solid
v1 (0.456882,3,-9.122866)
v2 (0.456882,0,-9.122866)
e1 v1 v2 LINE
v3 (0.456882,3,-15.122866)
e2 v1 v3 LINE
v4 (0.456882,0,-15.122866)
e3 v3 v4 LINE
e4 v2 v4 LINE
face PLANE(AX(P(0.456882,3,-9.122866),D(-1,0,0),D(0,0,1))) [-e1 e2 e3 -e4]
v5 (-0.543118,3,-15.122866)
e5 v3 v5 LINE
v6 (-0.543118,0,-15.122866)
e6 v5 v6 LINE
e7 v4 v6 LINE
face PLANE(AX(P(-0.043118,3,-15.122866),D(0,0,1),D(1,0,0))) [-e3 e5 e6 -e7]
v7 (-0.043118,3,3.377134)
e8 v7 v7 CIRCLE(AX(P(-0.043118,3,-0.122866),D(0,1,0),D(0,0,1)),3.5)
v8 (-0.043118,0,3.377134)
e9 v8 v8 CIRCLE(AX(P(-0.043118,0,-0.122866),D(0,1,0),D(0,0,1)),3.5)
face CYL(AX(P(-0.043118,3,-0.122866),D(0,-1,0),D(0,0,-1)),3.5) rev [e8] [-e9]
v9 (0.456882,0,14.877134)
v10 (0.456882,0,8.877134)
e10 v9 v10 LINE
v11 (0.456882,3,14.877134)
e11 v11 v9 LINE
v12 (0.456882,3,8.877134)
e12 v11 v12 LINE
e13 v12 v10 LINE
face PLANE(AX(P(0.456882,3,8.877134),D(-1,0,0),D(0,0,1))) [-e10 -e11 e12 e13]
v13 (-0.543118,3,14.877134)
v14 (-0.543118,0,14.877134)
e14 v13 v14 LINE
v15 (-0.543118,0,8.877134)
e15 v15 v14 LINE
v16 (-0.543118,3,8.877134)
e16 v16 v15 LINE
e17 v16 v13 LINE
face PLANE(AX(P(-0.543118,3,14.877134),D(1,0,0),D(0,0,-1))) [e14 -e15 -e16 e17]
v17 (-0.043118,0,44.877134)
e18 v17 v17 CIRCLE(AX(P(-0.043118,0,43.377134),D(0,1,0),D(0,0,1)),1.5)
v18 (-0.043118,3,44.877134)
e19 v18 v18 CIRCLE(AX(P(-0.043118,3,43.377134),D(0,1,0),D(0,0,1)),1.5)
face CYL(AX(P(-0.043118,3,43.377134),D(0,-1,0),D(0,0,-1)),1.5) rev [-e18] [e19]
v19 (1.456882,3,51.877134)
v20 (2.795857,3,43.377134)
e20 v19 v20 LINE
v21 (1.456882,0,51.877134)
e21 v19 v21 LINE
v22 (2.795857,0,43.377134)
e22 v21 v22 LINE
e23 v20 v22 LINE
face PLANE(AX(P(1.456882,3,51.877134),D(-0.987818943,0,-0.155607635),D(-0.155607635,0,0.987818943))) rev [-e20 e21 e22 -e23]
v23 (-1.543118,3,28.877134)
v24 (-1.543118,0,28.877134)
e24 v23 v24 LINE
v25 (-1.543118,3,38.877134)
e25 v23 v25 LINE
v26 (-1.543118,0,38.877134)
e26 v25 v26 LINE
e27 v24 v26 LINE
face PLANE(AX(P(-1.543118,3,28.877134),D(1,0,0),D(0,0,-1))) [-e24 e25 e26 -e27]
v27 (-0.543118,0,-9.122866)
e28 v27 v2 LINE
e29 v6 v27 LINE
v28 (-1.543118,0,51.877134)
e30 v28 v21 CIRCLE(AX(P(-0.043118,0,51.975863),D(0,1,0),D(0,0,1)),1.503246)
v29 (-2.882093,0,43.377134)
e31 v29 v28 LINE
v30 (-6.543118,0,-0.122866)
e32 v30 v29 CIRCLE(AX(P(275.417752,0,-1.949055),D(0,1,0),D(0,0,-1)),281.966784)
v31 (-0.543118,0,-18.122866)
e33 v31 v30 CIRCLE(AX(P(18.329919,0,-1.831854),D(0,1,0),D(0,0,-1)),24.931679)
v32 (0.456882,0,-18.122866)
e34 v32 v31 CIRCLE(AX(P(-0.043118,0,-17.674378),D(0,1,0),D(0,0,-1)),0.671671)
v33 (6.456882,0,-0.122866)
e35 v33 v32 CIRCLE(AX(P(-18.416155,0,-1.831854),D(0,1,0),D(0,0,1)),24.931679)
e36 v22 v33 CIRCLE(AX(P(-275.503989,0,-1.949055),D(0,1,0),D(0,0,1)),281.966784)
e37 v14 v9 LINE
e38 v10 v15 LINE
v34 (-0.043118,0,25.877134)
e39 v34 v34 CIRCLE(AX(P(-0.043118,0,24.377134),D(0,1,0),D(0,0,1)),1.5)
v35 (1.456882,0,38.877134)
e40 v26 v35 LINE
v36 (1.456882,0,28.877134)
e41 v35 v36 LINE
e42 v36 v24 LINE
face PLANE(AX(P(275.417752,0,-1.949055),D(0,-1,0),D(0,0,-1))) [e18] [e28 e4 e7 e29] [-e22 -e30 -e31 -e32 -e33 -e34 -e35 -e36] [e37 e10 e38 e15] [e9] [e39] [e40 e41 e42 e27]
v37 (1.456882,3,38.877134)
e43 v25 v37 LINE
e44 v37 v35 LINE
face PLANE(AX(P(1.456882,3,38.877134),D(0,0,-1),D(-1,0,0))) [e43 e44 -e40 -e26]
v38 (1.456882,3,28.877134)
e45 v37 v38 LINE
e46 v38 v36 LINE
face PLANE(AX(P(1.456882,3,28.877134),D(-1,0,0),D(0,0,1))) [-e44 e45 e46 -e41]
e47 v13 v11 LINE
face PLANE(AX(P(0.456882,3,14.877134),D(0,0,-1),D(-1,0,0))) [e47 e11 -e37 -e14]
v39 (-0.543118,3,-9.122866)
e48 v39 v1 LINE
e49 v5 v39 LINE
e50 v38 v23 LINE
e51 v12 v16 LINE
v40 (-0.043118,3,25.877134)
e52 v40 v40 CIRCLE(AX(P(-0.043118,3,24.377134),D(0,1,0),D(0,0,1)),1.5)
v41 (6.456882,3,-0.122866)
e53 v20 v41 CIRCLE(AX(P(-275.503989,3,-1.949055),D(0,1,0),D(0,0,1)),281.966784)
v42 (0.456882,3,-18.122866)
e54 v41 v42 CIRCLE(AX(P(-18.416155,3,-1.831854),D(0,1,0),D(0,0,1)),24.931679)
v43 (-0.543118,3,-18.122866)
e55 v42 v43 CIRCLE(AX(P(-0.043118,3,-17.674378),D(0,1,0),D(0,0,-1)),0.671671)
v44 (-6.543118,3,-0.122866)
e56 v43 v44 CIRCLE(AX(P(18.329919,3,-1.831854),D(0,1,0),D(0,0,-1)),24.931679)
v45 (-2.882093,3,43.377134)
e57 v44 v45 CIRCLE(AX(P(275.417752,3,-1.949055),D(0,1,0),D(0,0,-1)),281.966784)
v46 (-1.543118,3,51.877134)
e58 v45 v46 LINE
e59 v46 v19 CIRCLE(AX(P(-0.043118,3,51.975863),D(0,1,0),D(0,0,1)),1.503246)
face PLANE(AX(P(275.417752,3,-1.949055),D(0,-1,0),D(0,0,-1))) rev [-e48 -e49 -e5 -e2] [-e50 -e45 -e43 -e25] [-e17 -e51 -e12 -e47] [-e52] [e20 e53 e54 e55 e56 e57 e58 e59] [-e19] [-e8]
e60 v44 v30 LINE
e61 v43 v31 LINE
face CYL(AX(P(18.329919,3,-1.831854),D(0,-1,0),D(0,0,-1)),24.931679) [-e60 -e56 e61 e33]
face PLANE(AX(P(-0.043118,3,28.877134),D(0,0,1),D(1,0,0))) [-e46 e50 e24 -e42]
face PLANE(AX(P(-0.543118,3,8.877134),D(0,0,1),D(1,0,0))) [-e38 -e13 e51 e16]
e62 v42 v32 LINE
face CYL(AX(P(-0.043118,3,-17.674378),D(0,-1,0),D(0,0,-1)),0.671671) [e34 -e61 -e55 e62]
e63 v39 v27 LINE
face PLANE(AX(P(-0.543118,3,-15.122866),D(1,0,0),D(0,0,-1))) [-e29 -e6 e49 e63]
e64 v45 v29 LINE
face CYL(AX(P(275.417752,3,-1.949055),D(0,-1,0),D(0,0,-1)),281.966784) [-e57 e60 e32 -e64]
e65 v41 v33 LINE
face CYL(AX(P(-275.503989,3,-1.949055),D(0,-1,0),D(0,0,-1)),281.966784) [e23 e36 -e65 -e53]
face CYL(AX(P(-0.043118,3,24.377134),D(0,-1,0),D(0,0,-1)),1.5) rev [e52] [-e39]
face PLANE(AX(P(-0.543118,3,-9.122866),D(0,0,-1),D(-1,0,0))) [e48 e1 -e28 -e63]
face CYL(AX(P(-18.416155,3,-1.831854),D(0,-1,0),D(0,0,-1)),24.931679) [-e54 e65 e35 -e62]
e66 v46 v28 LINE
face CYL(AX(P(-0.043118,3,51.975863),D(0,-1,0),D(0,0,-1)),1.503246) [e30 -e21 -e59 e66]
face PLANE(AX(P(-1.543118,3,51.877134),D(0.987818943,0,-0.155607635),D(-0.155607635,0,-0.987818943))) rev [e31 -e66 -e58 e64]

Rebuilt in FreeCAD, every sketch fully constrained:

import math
import FreeCAD as App
import Part
import Sketcher

V = App.Vector
Q = App.Units.Quantity


def add_polygon(sketch, points):
    """Adds a closed chain of lines whose ends are joined by coincident constraints."""
    first, n = sketch.GeometryCount, len(points)
    for a, b in zip(points, points[1:] + points[:1]):
        sketch.addGeometry(Part.LineSegment(App.Vector(*a, 0), App.Vector(*b, 0)), False)
    for i in range(n):
        sketch.addConstraint(Sketcher.Constraint("Coincident", first + i, 2, first + (i + 1) % n, 1))

doc = App.newDocument("Part")
body = doc.addObject("PartDesign::Body", "Body")

sketch1 = body.newObject("Sketcher::SketchObject", "Sketch")
sketch1.AttachmentSupport = (doc.getObject("XZ_Plane"), [""])
sketch1.MapMode = "FlatFace"
sketch1.addGeometry(Part.LineSegment(V(-2.882093, 43.377134, 0), V(-1.543118, 51.877134, 0)), False)
sketch1.addGeometry(Part.ArcOfCircle(Part.Circle(V(-0.043118, 51.975863, 0), V(0, 0, 1), 1.503246), math.radians(-3.76573), math.radians(183.76573)), False)
sketch1.addGeometry(Part.LineSegment(V(1.456882, 51.877134, 0), V(2.795857, 43.377134, 0)), False)
sketch1.addGeometry(Part.ArcOfCircle(Part.Circle(V(-275.503989, -1.949055, 0), V(0, 0, 1), 281.966784), math.radians(0.371085), math.radians(9.250437)), False)
sketch1.addGeometry(Part.ArcOfCircle(Part.Circle(V(-18.416155, -1.831854, 0), V(0, 0, 1), 24.931679), math.radians(-40.800424), math.radians(3.930526)), False)
sketch1.addGeometry(Part.ArcOfCircle(Part.Circle(V(-0.043118, -17.674378, 0), V(0, 0, 1), 0.671671), math.radians(-138.108653), math.radians(-41.891347)), False)
sketch1.addGeometry(Part.ArcOfCircle(Part.Circle(V(18.329919, -1.831854, 0), V(0, 0, 1), 24.931679), math.radians(176.069474), math.radians(220.800424)), False)
sketch1.addGeometry(Part.ArcOfCircle(Part.Circle(V(275.417752, -1.949055, 0), V(0, 0, 1), 281.966784), math.radians(170.749563), math.radians(179.628915)), False)
sketch1.addGeometry(Part.Circle(V(-0.043118, 43.377134, 0), V(0, 0, 1), 1.5), False)
add_polygon(sketch1, [(1.456882, 28.877134), (1.456882, 38.877134), (-1.543118, 38.877134), (-1.543118, 28.877134)])
sketch1.addGeometry(Part.Circle(V(-0.043118, 24.377134, 0), V(0, 0, 1), 1.5), False)
add_polygon(sketch1, [(-0.543118, 14.877134), (-0.543118, 8.877134), (0.456882, 8.877134), (0.456882, 14.877134)])
sketch1.addGeometry(Part.Circle(V(-0.043118, -0.122866, 0), V(0, 0, 1), 3.5), False)
add_polygon(sketch1, [(0.456882, -15.122866), (0.456882, -9.122866), (-0.543118, -9.122866), (-0.543118, -15.122866)])
sketch1.addConstraint([
    Sketcher.Constraint("Coincident", 0, 2, 1, 2),
    Sketcher.Constraint("Coincident", 1, 1, 2, 1),
    Sketcher.Constraint("Coincident", 2, 2, 3, 2),
    Sketcher.Constraint("Coincident", 3, 1, 4, 2),
    Sketcher.Constraint("Coincident", 4, 1, 5, 2),
    Sketcher.Constraint("Coincident", 5, 1, 6, 2),
    Sketcher.Constraint("Coincident", 6, 1, 7, 2),
    Sketcher.Constraint("Coincident", 7, 1, 0, 1),
    Sketcher.Constraint("Vertical", 9),
    Sketcher.Constraint("Horizontal", 10),
    Sketcher.Constraint("Vertical", 11),
    Sketcher.Constraint("Horizontal", 12),
    Sketcher.Constraint("Vertical", 14),
    Sketcher.Constraint("Horizontal", 15),
    Sketcher.Constraint("Vertical", 16),
    Sketcher.Constraint("Horizontal", 17),
    Sketcher.Constraint("Vertical", 19),
    Sketcher.Constraint("Horizontal", 20),
    Sketcher.Constraint("Vertical", 21),
    Sketcher.Constraint("Horizontal", 22),
    Sketcher.Constraint("Equal", 4, 6),
    Sketcher.Constraint("Equal", 3, 7),
    Sketcher.Constraint("Equal", 8, 13),
    Sketcher.Constraint("Horizontal", 4, 3, 6, 3),
    Sketcher.Constraint("Horizontal", 3, 3, 7, 3),
    Sketcher.Constraint("Horizontal", 0, 2, 1, 1),
    Sketcher.Constraint("Horizontal", 8, 3, 2, 2),
    Sketcher.Constraint("Horizontal", 18, 3, 3, 1),
    Sketcher.Constraint("Horizontal", 4, 1, 5, 1),
    Sketcher.Constraint("Horizontal", 3, 1, 6, 1),
    Sketcher.Constraint("Horizontal", 2, 2, 7, 1),
    Sketcher.Constraint("Vertical", 1, 3, 5, 3),
    Sketcher.Constraint("Vertical", 5, 3, 8, 3),
    Sketcher.Constraint("Vertical", 8, 3, 13, 3),
    Sketcher.Constraint("Vertical", 13, 3, 18, 3),
    Sketcher.Constraint("Vertical", 1, 1, 9, 2),
    Sketcher.Constraint("Vertical", 0, 2, 10, 2),
    Sketcher.Constraint("Vertical", 5, 1, 14, 2),
    Sketcher.Constraint("Vertical", 4, 1, 15, 2),
    Sketcher.Constraint("Vertical", 16, 2, 19, 2),
    Sketcher.Constraint("Vertical", 17, 2, 20, 2),
    Sketcher.Constraint("Equal", 16, 19),
    Sketcher.Constraint("Diameter", 8, Q("3 mm")),
    Sketcher.Constraint("Diameter", 18, Q("7 mm")),
    Sketcher.Constraint("DistanceX", 10, 2, 10, 1, Q("3 mm")),
    Sketcher.Constraint("DistanceX", 15, 1, 15, 2, Q("1 mm")),
    Sketcher.Constraint("DistanceY", 9, 1, 9, 2, Q("10 mm")),
    Sketcher.Constraint("DistanceY", 14, 2, 14, 1, Q("6 mm")),
    Sketcher.Constraint("DistanceY", 13, 3, 8, 3, Q("19 mm")),
    Sketcher.Constraint("DistanceY", 18, 3, 0, 2, Q("52 mm")),
    Sketcher.Constraint("DistanceY", 4, 1, 18, 3, Q("18 mm")),
    Sketcher.Constraint("DistanceX", 4, 1, 3, 1, Q("6 mm")),
    Sketcher.Constraint("DistanceY", 9, 2, 1, 1, Q("13 mm")),
    Sketcher.Constraint("DistanceY", 18, 3, 14, 2, Q("9 mm")),
    Sketcher.Constraint("DistanceY", 4, 1, 19, 2, Q("9 mm")),
    Sketcher.Constraint("DistanceY", 18, 3, 13, 3, Q("24.5 mm")),
    Sketcher.Constraint("Radius", 4, Q("24.931679 mm")),
    Sketcher.Constraint("Radius", 5, Q("0.671671 mm")),
    Sketcher.Constraint("Radius", 1, Q("1.503246 mm")),
    Sketcher.Constraint("Radius", 3, Q("281.966784 mm")),
    Sketcher.Constraint("DistanceY", 3, 3, 4, 3, Q("0.117202 mm")),
    Sketcher.Constraint("DistanceX", 1, 3, -1, 1, Q("0.043118 mm")),
    Sketcher.Constraint("DistanceY", -1, 1, 1, 3, Q("51.975863 mm")),
])
pad1 = body.newObject("PartDesign::Pad", "Pad")
pad1.Profile = sketch1
pad1.Length = 3
pad1.Reversed = True

doc.recompute()
